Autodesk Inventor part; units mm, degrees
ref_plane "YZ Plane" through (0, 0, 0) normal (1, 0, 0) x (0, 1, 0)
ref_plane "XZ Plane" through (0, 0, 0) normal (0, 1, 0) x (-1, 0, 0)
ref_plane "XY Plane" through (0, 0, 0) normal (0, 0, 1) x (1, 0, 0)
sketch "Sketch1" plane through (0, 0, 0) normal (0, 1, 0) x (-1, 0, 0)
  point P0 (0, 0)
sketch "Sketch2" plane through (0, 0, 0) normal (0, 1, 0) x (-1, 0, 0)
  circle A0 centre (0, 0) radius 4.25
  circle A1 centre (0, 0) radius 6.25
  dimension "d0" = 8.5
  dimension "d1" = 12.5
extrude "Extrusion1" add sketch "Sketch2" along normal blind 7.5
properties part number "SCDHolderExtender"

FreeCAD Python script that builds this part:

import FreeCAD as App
import Part
import Sketcher

doc = App.newDocument("Part")
body = doc.addObject("PartDesign::Body", "Body")

# Sketch on XZ plane
sketch1 = doc.addObject("Sketcher::SketchObject", "Sketch")
body.addObject(sketch1)
sketch1.AttachmentSupport = (doc.XZ_Plane, [""])
sketch1.MapMode = "FlatFace"
sketch1.addGeometry([
    Part.Circle(App.Vector(0, 0, 0), App.Vector(0, 0, 1), 6.2),
    Part.Circle(App.Vector(0, 0, 0), App.Vector(0, 0, 1), 4.2),
], False)
sketch1.addConstraint([
    Sketcher.Constraint("Coincident", 0, 3, -1, 1),
    Sketcher.Constraint("Coincident", 1, 3, -1, 1),
    Sketcher.Constraint("Diameter", 0, 12.5),
    Sketcher.Constraint("Diameter", 1, 8.5),
])
pad1 = doc.addObject("PartDesign::Pad", "Pad")
body.addObject(pad1)
pad1.Profile = sketch1
pad1.Length = 7.5
pad1.Reversed = True

doc.recompute()
